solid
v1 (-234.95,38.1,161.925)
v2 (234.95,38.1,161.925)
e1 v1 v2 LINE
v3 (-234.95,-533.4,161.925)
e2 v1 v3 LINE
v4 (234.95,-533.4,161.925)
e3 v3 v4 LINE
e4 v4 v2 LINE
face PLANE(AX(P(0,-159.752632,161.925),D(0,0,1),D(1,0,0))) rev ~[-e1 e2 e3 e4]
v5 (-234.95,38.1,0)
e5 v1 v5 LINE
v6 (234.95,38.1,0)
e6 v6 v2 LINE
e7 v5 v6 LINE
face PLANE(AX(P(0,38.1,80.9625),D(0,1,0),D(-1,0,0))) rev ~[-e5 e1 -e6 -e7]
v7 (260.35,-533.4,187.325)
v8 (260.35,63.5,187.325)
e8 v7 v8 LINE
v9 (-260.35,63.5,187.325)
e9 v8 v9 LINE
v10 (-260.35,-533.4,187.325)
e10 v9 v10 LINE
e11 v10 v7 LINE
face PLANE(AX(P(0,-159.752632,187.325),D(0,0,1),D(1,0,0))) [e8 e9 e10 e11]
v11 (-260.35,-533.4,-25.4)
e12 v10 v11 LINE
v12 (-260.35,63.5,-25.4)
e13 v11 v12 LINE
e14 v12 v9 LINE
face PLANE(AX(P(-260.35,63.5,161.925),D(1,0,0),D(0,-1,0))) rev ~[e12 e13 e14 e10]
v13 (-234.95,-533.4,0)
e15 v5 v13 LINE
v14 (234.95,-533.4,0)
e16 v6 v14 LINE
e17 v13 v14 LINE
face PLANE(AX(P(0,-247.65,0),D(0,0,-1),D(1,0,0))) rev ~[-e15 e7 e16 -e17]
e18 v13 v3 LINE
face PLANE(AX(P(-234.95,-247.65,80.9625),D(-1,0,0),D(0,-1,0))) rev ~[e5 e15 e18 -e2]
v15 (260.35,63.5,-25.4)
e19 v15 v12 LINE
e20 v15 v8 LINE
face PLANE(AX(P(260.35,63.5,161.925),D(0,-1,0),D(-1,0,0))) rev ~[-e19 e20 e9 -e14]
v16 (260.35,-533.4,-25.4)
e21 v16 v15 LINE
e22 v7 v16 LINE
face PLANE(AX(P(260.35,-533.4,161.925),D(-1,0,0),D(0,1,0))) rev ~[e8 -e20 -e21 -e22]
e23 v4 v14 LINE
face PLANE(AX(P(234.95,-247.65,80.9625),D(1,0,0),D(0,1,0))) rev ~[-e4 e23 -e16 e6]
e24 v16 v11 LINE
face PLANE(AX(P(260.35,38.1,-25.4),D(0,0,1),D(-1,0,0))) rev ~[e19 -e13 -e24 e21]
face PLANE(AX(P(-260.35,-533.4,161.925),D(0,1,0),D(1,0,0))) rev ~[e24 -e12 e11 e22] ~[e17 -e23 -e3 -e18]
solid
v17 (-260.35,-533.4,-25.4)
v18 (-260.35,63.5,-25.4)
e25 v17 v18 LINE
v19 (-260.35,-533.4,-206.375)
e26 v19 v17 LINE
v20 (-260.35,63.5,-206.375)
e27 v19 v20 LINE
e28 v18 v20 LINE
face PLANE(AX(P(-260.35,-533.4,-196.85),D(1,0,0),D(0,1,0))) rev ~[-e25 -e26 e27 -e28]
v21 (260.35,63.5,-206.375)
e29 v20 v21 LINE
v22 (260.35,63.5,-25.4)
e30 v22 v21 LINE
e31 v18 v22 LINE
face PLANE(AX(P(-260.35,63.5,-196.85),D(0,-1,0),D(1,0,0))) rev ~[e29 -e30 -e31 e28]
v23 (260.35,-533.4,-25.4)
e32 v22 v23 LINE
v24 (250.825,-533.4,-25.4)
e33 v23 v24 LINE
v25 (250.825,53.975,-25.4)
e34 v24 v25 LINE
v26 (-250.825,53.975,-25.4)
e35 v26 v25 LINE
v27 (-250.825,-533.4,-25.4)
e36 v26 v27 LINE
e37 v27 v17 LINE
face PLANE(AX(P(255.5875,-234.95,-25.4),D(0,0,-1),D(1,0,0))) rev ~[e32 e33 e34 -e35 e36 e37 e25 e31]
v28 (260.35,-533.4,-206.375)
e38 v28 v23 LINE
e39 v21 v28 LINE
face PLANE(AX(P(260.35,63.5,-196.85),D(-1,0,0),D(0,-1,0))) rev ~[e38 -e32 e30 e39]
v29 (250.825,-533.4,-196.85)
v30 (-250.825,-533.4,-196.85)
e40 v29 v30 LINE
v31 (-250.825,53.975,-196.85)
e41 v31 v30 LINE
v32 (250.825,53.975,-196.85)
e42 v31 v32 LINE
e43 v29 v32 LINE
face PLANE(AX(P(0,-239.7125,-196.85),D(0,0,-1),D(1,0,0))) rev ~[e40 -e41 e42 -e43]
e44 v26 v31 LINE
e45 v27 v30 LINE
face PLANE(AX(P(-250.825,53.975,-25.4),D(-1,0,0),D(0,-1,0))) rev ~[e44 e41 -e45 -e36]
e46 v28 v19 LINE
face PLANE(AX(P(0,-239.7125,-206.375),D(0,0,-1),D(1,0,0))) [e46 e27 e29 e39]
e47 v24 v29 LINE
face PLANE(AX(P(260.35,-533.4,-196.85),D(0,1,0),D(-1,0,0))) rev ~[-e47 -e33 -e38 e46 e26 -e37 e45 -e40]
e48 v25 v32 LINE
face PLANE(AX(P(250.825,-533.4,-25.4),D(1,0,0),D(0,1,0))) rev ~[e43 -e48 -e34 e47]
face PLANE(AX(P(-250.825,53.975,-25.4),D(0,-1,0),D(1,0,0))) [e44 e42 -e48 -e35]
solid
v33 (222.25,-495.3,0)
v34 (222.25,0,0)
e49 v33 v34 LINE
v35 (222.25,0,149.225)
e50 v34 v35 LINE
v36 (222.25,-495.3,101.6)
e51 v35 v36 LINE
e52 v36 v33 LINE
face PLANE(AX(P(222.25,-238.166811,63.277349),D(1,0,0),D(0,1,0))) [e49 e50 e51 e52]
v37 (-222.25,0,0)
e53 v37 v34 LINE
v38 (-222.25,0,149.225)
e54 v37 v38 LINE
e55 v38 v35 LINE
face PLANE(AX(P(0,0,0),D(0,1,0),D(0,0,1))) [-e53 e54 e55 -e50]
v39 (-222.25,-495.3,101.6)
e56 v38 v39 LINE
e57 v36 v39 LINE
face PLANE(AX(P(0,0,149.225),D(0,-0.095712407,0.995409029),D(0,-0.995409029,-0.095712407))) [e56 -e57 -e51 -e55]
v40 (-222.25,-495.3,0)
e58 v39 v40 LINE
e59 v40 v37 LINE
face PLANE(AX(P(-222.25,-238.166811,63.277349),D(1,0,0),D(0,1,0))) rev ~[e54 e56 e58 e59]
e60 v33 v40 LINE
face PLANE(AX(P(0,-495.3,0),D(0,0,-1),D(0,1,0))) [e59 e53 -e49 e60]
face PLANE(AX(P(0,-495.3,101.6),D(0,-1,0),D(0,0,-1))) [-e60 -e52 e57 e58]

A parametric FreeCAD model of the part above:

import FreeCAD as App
import Part
import Sketcher
Q = App.Units.Quantity


def add_polygon(sketch, points):
    """Adds a closed chain of lines whose ends are joined by coincident constraints."""
    first, n = sketch.GeometryCount, len(points)
    for a, b in zip(points, points[1:] + points[:1]):
        sketch.addGeometry(Part.LineSegment(App.Vector(*a, 0), App.Vector(*b, 0)), False)
    for i in range(n):
        sketch.addConstraint(Sketcher.Constraint("Coincident", first + i, 2, first + (i + 1) % n, 1))

doc = App.newDocument("Part")
body = doc.addObject("PartDesign::Body", "Body")

sketch1 = body.newObject("Sketcher::SketchObject", "Sketch")
sketch1.AttachmentSupport = (doc.getObject("YZ_Plane"), [""])
sketch1.MapMode = "FlatFace"
add_polygon(sketch1, [(-495, 0), (0, 0), (0, 149), (-495, 102)])
sketch1.addConstraint(Sketcher.Constraint("Horizontal", 0))
sketch1.addConstraint(Sketcher.Constraint("Vertical", 1))
sketch1.addConstraint(Sketcher.Constraint("Vertical", 3))
sketch1.addConstraint(Sketcher.Constraint("Coincident", 0, 2, -1, 1))
sketch1.addConstraint(Sketcher.Constraint("DistanceY", 3, 2, 3, 1, Q("4 in")))
sketch1.addConstraint(Sketcher.Constraint("DistanceX", 0, 1, 0, 2, Q("19.5 in")))
sketch1.addConstraint(Sketcher.Constraint("DistanceY", 1, 1, 1, 2, Q("5.875 in")))
pad1 = body.newObject("PartDesign::Pad", "Pad")
pad1.Profile = sketch1
pad1.Type = "TwoLengths"
pad1.Length = Q("8.75 in")
pad1.Length2 = Q("8.75 in")
body2 = doc.addObject("PartDesign::Body", "Body001")

sketch2 = body2.newObject("Sketcher::SketchObject", "Sketch001")
sketch2.AttachmentSupport = (doc.getObject("XY_Plane001"), [""])
sketch2.MapMode = "FlatFace"
add_polygon(sketch2, [(-235, -533), (-235, 38), (235, 38), (235, -533)])
sketch2.addConstraint(Sketcher.Constraint("Vertical", 0))
sketch2.addConstraint(Sketcher.Constraint("Horizontal", 1))
sketch2.addConstraint(Sketcher.Constraint("Vertical", 2))
sketch2.addConstraint(Sketcher.Constraint("Horizontal", 3))
sketch2.addConstraint(Sketcher.Constraint("DistanceX", 1, 1, 1, 2, Q("18.5 in")))
sketch2.addConstraint(Sketcher.Constraint("DistanceY", 0, 1, 0, 2, Q("22.5 in")))
sketch2.addConstraint(Sketcher.Constraint("DistanceY", 2, 2, -1, 1, Q("21 in")))
sketch2.addConstraint(Sketcher.Constraint("DistanceX", 0, 2, -1, 1, Q("9.25 in")))
pad2 = body2.newObject("PartDesign::Pad", "Pad001")
pad2.Profile = sketch2
pad2.Length = Q("1 in")
pad2.Reversed = True

sketch3 = body2.newObject("Sketcher::SketchObject", "Sketch002")
sketch3.AttachmentSupport = (doc.getObject("YZ_Plane001"), [""])
sketch3.MapMode = "FlatFace"
sketch3.AttachmentOffset = App.Placement(App.Vector(0, 0, 9.25 * 25.4), App.Rotation())
add_polygon(sketch3, [(-533, 162), (-533, -25), (38, -25), (38, 162)])
sketch3.addConstraint(Sketcher.Constraint("Vertical", 0))
sketch3.addConstraint(Sketcher.Constraint("Horizontal", 1))
sketch3.addConstraint(Sketcher.Constraint("Vertical", 2))
sketch3.addConstraint(Sketcher.Constraint("Horizontal", 3))
sketch3.addConstraint(Sketcher.Constraint("DistanceX", 1, 1, 1, 2, Q("22.5 in")))
sketch3.addConstraint(Sketcher.Constraint("DistanceX", 0, 2, -1, 1, Q("21 in")))
sketch3.addConstraint(Sketcher.Constraint("DistanceY", 0, 2, -1, 1, Q("1 in")))
sketch3.addConstraint(Sketcher.Constraint("DistanceY", 0, 2, 0, 1, Q("7.375 in")))
pad3 = body2.newObject("PartDesign::Pad", "Pad002")
pad3.Profile = sketch3
pad3.Length = Q("1 in")

sketch4 = body2.newObject("Sketcher::SketchObject", "Sketch003")
sketch4.AttachmentSupport = (doc.getObject("YZ_Plane001"), [""])
sketch4.MapMode = "FlatFace"
sketch4.AttachmentOffset = App.Placement(App.Vector(0, 0, -9.25 * 25.4), App.Rotation())
add_polygon(sketch4, [(38, 162), (38, -25), (-533, -25), (-533, 162)])
sketch4.addConstraint(Sketcher.Constraint("Vertical", 0))
sketch4.addConstraint(Sketcher.Constraint("Horizontal", 1))
sketch4.addConstraint(Sketcher.Constraint("Vertical", 2))
sketch4.addConstraint(Sketcher.Constraint("Horizontal", 3))
sketch4.addConstraint(Sketcher.Constraint("DistanceX", 1, 2, 1, 1, Q("22.5 in")))
sketch4.addConstraint(Sketcher.Constraint("DistanceY", 0, 2, -1, 1, Q("1 in")))
sketch4.addConstraint(Sketcher.Constraint("DistanceX", 1, 2, -1, 1, Q("21 in")))
sketch4.addConstraint(Sketcher.Constraint("DistanceY", 0, 2, 0, 1, Q("7.375 in")))
pad4 = body2.newObject("PartDesign::Pad", "Pad003")
pad4.Profile = sketch4
pad4.Length = Q("1 in")
pad4.Reversed = True

sketch5 = body2.newObject("Sketcher::SketchObject", "Sketch004")
sketch5.AttachmentSupport = (doc.getObject("XZ_Plane001"), [""])
sketch5.MapMode = "FlatFace"
sketch5.AttachmentOffset = App.Placement(App.Vector(0, 0, -1.5 * 25.4), App.Rotation())
add_polygon(sketch5, [(260, 162), (260, -25), (-260, -25), (-260, 162)])
sketch5.addConstraint(Sketcher.Constraint("Vertical", 0))
sketch5.addConstraint(Sketcher.Constraint("Horizontal", 1))
sketch5.addConstraint(Sketcher.Constraint("Vertical", 2))
sketch5.addConstraint(Sketcher.Constraint("Horizontal", 3))
sketch5.addConstraint(Sketcher.Constraint("DistanceX", 1, 2, 1, 1, Q("20.5 in")))
sketch5.addConstraint(Sketcher.Constraint("DistanceY", 0, 2, -1, 1, Q("1 in")))
sketch5.addConstraint(Sketcher.Constraint("DistanceY", 0, 2, 0, 1, Q("7.375 in")))
sketch5.addConstraint(Sketcher.Constraint("DistanceX", -1, 1, 0, 2, Q("10.25 in")))
pad5 = body2.newObject("PartDesign::Pad", "Pad004")
pad5.Profile = sketch5
pad5.Length = Q("1 in")
pad5.Reversed = True

sketch6 = body2.newObject("Sketcher::SketchObject", "Sketch005")
sketch6.AttachmentSupport = (doc.getObject("XY_Plane001"), [""])
sketch6.MapMode = "FlatFace"
sketch6.AttachmentOffset = App.Placement(App.Vector(0, 0, 6.375 * 25.4), App.Rotation())
add_polygon(sketch6, [(260, -533), (260, 64), (-260, 64), (-260, -533)])
sketch6.addConstraint(Sketcher.Constraint("Vertical", 0))
sketch6.addConstraint(Sketcher.Constraint("Horizontal", 1))
sketch6.addConstraint(Sketcher.Constraint("Vertical", 2))
sketch6.addConstraint(Sketcher.Constraint("Horizontal", 3))
sketch6.addConstraint(Sketcher.Constraint("DistanceX", 1, 2, 1, 1, Q("20.5 in")))
sketch6.addConstraint(Sketcher.Constraint("DistanceY", 0, 1, 0, 2, Q("23.5 in")))
sketch6.addConstraint(Sketcher.Constraint("DistanceY", 2, 2, -1, 1, Q("21 in")))
sketch6.addConstraint(Sketcher.Constraint("DistanceX", -1, 1, 0, 2, Q("10.25 in")))
pad6 = body2.newObject("PartDesign::Pad", "Pad005")
pad6.Profile = sketch6
pad6.Length = Q("1 in")
body3 = doc.addObject("PartDesign::Body", "Body002")

sketch7 = body3.newObject("Sketcher::SketchObject", "Sketch006")
sketch7.AttachmentSupport = (doc.getObject("XY_Plane002"), [""])
sketch7.MapMode = "FlatFace"
sketch7.AttachmentOffset = App.Placement(App.Vector(0, 0, -1 * 25.4), App.Rotation())
add_polygon(sketch7, [(260, 64), (260, -533), (251, -533), (251, 54), (-251, 54), (-251, -533), (-260, -533), (-260, 64)])
sketch7.addConstraint(Sketcher.Constraint("Vertical", 0))
sketch7.addConstraint(Sketcher.Constraint("Horizontal", 1))
sketch7.addConstraint(Sketcher.Constraint("Vertical", 2))
sketch7.addConstraint(Sketcher.Constraint("Horizontal", 3))
sketch7.addConstraint(Sketcher.Constraint("Vertical", 4))
sketch7.addConstraint(Sketcher.Constraint("Horizontal", 5))
sketch7.addConstraint(Sketcher.Constraint("Vertical", 6))
sketch7.addConstraint(Sketcher.Constraint("Horizontal", 7))
sketch7.addConstraint(Sketcher.Constraint("Symmetric", 1, 2, 4, 2, -2))
sketch7.addConstraint(Sketcher.Constraint("Equal", 1, 5))
sketch7.addConstraint(Sketcher.Constraint("DistanceX", 7, 1, 7, 2, Q("20.5 in")))
sketch7.addConstraint(Sketcher.Constraint("DistanceY", 0, 2, 0, 1, Q("23.5 in")))
sketch7.addConstraint(Sketcher.Constraint("DistanceY", 0, 2, -1, 1, Q("21 in")))
sketch7.addConstraint(Sketcher.Constraint("DistanceX", 3, 2, 3, 1, Q("19.75 in")))
sketch7.addConstraint(Sketcher.Constraint("DistanceY", 2, 1, 2, 2, Q("23.125 in")))
pad7 = body3.newObject("PartDesign::Pad", "Pad006")
pad7.Profile = sketch7
pad7.Length = Q("6.75 in")
pad7.Reversed = True

sketch8 = body3.newObject("Sketcher::SketchObject", "Sketch007")
sketch8.AttachmentSupport = (doc.getObject("XY_Plane002"), [""])
sketch8.MapMode = "FlatFace"
sketch8.AttachmentOffset = App.Placement(App.Vector(0, 0, -7.75 * 25.4), App.Rotation())
add_polygon(sketch8, [(-260, -533), (-260, 64), (260, 64), (260, -533)])
sketch8.addConstraint(Sketcher.Constraint("Vertical", 0))
sketch8.addConstraint(Sketcher.Constraint("Horizontal", 1))
sketch8.addConstraint(Sketcher.Constraint("Vertical", 2))
sketch8.addConstraint(Sketcher.Constraint("Horizontal", 3))
sketch8.addConstraint(Sketcher.Constraint("DistanceX", 1, 1, 1, 2, Q("20.5 in")))
sketch8.addConstraint(Sketcher.Constraint("DistanceY", 0, 1, 0, 2, Q("23.5 in")))
sketch8.addConstraint(Sketcher.Constraint("DistanceY", 2, 2, -1, 1, Q("21 in")))
sketch8.addConstraint(Sketcher.Constraint("DistanceX", 0, 2, -1, 1, Q("10.25 in")))
pad8 = body3.newObject("PartDesign::Pad", "Pad007")
pad8.Profile = sketch8
pad8.Length = Q("0.375 in")
pad8.Reversed = True

doc.recompute()
